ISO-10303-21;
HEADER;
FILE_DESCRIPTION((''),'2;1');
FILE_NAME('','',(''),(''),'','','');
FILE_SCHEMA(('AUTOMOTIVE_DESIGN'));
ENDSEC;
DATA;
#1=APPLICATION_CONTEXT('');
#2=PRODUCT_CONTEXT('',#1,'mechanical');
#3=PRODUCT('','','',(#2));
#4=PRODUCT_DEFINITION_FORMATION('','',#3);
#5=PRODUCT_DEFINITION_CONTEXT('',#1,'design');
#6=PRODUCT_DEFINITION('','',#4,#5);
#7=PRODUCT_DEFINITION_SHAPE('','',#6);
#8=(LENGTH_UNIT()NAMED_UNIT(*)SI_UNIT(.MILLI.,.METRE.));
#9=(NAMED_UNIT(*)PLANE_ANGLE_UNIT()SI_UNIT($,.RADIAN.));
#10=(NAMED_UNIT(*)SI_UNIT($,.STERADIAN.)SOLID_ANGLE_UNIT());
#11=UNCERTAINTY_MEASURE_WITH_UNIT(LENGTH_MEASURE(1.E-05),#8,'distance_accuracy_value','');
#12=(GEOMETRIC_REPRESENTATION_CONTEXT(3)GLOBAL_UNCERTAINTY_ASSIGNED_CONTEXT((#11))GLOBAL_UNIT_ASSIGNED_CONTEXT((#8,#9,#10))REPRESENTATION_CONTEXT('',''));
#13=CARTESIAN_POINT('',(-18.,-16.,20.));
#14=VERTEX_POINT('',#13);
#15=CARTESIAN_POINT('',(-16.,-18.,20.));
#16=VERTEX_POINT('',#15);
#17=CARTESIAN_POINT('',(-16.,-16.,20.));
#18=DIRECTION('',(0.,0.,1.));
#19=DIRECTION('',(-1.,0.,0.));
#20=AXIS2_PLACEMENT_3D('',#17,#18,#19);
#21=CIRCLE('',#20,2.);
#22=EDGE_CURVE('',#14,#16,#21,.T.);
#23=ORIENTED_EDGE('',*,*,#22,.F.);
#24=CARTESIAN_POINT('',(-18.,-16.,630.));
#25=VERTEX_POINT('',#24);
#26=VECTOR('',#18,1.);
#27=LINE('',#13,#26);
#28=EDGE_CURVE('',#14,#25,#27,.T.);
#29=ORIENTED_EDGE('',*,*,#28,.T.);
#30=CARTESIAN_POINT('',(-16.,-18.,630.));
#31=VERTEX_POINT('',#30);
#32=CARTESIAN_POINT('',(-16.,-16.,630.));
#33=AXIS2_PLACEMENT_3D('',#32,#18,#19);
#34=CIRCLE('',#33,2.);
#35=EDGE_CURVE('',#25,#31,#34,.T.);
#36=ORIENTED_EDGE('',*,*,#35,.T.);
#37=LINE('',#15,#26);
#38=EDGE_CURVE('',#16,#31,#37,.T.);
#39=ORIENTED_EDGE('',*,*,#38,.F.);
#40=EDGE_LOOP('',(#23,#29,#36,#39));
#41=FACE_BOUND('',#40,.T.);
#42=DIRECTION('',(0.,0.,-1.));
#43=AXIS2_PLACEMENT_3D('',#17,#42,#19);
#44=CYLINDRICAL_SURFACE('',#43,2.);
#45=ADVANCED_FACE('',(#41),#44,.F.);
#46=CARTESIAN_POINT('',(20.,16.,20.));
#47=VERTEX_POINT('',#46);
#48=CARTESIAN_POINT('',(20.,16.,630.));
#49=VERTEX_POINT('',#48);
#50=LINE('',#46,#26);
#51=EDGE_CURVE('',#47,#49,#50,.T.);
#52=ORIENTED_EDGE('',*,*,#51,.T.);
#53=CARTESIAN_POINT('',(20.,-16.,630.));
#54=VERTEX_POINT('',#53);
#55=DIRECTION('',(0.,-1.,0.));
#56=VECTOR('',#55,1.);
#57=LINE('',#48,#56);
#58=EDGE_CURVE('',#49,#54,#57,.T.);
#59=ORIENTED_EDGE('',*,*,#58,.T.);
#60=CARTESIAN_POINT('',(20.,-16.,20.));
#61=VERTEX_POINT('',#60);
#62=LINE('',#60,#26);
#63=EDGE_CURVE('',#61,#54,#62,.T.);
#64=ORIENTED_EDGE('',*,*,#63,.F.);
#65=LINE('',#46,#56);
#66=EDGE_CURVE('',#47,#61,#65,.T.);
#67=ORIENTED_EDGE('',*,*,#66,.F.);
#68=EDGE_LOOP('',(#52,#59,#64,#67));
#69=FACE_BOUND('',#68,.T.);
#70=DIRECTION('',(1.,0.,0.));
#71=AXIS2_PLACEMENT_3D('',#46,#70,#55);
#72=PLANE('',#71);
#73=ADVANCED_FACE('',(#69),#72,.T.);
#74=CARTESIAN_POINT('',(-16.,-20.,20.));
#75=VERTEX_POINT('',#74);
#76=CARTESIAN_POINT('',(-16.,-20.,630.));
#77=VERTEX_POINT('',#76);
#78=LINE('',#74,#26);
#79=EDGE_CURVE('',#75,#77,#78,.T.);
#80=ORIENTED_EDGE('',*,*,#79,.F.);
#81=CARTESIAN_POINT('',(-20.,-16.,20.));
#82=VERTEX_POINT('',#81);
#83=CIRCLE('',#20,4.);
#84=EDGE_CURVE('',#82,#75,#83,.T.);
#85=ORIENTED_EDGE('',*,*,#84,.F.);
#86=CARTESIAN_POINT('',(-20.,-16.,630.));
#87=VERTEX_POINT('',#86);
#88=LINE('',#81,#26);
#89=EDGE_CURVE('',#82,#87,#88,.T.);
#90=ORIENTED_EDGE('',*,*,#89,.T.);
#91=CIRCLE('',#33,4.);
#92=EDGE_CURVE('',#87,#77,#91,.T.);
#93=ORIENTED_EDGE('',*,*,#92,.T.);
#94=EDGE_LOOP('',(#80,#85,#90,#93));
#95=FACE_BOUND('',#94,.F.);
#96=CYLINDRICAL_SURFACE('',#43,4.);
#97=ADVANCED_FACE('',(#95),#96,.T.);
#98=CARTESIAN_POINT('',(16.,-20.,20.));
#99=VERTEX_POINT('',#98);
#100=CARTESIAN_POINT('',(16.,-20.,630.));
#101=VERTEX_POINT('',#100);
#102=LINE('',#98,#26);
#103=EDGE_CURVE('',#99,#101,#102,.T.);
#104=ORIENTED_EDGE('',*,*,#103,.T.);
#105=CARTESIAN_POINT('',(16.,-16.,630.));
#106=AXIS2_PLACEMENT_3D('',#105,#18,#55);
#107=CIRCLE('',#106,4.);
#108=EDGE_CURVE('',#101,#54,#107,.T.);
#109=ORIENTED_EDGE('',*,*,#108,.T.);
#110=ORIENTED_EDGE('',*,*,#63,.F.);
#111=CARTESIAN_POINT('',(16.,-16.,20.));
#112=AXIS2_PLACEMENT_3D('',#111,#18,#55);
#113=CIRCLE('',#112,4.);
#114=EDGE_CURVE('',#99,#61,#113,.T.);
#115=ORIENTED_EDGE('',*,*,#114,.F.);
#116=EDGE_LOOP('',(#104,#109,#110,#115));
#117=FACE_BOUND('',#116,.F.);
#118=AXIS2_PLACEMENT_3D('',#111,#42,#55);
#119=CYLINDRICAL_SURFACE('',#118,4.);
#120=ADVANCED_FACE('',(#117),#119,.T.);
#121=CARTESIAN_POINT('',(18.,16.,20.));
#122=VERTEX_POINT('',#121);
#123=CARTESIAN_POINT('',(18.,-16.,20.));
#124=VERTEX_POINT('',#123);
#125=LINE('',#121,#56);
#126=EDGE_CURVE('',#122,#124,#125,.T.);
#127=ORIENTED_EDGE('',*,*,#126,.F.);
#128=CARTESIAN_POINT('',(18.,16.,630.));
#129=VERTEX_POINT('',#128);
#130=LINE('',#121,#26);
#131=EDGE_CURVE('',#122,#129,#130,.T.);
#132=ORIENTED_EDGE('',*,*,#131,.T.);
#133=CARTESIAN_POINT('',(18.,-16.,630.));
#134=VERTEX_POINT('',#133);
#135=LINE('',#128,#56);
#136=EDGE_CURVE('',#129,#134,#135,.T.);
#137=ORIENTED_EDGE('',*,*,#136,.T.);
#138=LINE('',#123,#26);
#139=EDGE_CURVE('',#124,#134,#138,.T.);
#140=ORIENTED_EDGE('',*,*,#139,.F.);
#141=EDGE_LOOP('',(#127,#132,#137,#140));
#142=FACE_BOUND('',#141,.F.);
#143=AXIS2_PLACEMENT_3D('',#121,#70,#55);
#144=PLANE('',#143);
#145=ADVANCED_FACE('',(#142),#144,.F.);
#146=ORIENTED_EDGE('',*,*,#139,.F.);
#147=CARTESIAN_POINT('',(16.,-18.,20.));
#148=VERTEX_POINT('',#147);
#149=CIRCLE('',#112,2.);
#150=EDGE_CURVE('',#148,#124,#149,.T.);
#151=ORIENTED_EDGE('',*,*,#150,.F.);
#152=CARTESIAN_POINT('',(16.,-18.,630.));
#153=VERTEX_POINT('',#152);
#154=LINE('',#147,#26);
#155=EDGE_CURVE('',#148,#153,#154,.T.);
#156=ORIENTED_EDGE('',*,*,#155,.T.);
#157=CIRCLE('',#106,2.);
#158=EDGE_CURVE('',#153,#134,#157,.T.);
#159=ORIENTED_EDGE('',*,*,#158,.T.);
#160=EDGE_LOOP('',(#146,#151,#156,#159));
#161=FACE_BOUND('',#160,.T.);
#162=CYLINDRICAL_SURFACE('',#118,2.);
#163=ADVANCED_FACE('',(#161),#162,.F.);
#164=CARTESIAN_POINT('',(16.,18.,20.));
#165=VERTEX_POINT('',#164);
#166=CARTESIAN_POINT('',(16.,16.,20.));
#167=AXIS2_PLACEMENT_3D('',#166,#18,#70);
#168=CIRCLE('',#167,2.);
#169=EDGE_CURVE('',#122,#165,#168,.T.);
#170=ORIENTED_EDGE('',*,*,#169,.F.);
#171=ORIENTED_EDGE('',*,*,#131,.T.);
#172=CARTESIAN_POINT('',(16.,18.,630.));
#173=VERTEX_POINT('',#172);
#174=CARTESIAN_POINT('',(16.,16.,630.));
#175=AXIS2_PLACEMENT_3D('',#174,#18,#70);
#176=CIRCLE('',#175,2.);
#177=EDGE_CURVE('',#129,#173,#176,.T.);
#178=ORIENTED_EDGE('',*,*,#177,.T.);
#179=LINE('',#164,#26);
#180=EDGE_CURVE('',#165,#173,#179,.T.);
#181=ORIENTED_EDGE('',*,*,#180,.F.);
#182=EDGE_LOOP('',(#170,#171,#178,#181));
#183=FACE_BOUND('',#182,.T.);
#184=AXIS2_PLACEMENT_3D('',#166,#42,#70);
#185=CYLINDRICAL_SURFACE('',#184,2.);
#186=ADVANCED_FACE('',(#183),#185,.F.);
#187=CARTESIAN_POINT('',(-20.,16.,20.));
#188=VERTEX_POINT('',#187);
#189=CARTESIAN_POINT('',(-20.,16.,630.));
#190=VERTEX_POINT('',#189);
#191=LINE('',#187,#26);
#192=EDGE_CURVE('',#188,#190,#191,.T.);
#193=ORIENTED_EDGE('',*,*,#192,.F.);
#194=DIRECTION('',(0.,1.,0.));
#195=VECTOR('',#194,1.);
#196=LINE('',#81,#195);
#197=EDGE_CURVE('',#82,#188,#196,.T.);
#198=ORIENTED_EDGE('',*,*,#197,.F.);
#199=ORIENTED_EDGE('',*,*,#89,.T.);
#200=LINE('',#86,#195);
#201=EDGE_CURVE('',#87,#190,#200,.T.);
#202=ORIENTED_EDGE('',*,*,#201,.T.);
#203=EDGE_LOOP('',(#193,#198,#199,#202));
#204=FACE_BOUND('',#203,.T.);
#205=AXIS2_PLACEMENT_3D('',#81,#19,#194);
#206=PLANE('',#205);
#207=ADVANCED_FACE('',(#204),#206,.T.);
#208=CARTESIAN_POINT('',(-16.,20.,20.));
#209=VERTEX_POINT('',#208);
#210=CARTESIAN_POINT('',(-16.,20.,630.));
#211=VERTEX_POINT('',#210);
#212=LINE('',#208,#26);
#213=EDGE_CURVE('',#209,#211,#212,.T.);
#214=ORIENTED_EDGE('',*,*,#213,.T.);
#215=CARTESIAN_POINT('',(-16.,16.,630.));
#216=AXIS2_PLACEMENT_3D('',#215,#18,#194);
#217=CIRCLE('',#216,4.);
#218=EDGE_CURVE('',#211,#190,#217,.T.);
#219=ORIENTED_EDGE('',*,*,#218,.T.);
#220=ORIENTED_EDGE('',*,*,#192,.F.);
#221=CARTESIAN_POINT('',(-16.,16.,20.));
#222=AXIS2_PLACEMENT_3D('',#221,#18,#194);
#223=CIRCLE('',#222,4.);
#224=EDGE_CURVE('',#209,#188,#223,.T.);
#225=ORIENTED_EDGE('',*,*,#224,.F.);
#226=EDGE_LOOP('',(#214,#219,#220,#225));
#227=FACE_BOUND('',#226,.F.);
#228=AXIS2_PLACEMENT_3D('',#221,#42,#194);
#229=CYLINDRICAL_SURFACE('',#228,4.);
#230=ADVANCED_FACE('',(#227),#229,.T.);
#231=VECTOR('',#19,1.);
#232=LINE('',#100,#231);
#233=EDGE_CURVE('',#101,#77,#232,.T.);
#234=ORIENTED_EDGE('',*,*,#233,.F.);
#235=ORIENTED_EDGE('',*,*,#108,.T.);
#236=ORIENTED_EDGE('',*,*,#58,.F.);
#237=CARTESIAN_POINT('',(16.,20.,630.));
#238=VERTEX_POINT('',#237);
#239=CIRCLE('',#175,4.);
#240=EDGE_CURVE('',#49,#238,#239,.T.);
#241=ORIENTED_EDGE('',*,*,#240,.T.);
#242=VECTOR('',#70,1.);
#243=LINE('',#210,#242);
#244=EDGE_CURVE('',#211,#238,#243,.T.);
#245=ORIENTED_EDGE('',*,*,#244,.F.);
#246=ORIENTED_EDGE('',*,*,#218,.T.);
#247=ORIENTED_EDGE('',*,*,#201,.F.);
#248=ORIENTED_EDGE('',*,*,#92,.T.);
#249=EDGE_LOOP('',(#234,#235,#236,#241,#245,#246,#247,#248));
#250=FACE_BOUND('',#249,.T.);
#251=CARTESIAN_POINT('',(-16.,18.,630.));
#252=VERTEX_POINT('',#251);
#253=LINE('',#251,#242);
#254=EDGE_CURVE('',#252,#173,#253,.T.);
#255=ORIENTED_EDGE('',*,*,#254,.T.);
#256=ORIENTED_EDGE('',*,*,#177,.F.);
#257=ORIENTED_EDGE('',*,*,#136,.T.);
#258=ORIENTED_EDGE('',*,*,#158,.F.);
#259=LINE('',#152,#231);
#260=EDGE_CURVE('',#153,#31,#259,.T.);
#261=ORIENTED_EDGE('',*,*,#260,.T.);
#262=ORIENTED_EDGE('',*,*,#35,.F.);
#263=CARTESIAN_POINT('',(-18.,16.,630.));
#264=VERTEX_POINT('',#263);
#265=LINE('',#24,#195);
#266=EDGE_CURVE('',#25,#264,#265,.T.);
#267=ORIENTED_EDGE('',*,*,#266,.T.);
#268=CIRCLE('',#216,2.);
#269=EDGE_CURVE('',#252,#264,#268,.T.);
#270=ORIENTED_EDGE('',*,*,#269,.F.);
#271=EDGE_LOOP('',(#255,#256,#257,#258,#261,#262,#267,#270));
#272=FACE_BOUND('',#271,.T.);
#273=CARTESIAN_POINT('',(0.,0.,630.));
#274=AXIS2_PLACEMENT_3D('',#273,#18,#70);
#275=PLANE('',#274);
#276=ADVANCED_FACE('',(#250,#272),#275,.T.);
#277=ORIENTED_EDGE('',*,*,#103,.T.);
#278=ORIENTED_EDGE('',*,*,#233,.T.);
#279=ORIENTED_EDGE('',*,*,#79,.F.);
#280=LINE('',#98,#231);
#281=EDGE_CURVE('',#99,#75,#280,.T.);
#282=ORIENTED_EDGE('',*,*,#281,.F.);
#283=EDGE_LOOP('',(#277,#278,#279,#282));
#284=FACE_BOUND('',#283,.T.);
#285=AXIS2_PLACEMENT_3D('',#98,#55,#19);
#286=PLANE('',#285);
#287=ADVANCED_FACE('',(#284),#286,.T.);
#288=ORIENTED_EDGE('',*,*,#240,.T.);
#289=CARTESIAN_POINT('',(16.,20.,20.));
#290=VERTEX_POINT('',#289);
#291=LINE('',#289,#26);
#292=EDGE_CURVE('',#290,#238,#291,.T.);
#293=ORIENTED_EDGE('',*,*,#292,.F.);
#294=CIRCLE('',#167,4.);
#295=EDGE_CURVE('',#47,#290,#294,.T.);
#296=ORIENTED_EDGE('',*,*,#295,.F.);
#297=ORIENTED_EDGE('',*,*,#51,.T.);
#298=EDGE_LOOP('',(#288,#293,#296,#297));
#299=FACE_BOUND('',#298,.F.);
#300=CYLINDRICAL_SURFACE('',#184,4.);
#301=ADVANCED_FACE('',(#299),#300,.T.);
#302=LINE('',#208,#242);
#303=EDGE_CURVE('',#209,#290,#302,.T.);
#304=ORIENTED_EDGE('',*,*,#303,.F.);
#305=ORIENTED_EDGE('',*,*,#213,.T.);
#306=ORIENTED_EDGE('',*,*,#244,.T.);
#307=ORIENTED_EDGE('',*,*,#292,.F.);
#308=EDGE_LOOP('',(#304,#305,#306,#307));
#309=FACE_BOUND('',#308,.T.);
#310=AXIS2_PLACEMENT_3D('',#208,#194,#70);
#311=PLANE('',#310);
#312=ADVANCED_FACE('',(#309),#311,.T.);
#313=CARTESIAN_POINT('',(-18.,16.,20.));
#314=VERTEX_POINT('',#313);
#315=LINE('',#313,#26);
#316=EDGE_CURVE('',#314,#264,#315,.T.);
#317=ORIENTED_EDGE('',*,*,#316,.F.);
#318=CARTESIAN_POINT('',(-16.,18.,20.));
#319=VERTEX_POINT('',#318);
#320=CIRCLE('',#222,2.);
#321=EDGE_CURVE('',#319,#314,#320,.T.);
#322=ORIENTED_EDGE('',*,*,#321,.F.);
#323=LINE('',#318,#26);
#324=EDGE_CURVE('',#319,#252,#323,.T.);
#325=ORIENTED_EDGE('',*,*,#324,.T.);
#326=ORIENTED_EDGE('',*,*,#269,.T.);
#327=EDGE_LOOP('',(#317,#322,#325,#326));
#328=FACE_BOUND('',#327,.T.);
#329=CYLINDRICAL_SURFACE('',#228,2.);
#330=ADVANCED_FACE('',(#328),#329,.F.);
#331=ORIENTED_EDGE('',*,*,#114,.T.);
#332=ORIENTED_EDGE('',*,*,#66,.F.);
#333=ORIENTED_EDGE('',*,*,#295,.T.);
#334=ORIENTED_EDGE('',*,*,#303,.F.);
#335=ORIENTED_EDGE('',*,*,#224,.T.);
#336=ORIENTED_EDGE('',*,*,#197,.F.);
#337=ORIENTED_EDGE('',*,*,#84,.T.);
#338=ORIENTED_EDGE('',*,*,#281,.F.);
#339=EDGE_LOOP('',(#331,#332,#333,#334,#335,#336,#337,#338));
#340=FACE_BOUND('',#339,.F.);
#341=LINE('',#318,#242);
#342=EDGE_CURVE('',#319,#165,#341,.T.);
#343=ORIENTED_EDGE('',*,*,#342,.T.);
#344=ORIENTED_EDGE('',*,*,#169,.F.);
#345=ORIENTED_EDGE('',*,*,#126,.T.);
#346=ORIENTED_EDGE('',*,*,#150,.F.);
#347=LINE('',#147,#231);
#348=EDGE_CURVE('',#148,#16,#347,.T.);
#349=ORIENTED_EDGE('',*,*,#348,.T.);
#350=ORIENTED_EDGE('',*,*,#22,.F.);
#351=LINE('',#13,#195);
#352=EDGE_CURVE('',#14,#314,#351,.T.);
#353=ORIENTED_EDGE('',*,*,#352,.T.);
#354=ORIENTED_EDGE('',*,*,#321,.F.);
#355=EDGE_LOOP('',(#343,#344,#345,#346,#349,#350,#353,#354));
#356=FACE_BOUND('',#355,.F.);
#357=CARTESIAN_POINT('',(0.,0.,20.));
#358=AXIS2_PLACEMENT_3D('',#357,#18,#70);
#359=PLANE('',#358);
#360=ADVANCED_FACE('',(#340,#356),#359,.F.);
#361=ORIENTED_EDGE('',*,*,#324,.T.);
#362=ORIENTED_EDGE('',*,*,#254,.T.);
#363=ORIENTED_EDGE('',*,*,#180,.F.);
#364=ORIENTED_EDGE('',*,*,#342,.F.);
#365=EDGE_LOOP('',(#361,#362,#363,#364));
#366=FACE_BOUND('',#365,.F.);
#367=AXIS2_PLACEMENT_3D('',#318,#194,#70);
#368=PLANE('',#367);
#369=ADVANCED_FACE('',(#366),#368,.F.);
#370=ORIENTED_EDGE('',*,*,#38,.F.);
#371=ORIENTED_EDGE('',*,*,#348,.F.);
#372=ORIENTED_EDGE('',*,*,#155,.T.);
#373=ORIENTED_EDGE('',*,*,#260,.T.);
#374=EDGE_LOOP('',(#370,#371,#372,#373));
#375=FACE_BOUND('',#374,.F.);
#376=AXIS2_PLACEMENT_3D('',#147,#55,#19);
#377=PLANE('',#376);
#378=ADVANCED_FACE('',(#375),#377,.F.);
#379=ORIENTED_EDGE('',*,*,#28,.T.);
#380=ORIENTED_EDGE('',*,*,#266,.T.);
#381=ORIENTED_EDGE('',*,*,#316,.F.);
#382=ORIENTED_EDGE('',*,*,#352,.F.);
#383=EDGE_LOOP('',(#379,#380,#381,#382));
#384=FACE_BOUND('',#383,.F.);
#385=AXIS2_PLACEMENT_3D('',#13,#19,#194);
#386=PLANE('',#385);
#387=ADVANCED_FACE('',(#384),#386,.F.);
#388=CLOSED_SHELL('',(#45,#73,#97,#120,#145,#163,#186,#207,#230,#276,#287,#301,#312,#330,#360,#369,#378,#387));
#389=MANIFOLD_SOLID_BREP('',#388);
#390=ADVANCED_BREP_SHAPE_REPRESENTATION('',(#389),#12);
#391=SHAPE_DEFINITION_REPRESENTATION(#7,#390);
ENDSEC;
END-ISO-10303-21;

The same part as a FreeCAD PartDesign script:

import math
import FreeCAD as App
import Part
import Sketcher
from FreeCAD import Vector

doc = App.newDocument("Part")
body = doc.addObject("PartDesign::Body", "Body")

# Sketch on XY plane
sketch1 = body.newObject("Sketcher::SketchObject", "Sketch")
sketch1.AttachmentSupport = (doc.getObject("XY_Plane"), [""])
sketch1.MapMode = "FlatFace"
sketch1.AttachmentOffset = App.Placement(Vector(0, 0, 20), App.Rotation())
sketch1.addGeometry([
    Part.LineSegment(Vector(-20, 16, 0), Vector(-20, -16, 0)),  # 0
    Part.ArcOfCircle(Part.Circle(Vector(-16, -16, 0), Vector(0, 0, 1), 4), math.radians(180), math.radians(270)),  # 1
    Part.LineSegment(Vector(-16, -20, 0), Vector(16, -20, 0)),  # 2
    Part.ArcOfCircle(Part.Circle(Vector(16, -16, 0), Vector(0, 0, 1), 4), math.radians(-90), math.radians(0)),  # 3
    Part.LineSegment(Vector(20, -16, 0), Vector(20, 16, 0)),  # 4
    Part.ArcOfCircle(Part.Circle(Vector(16, 16, 0), Vector(0, 0, 1), 4), math.radians(0), math.radians(90)),  # 5
    Part.LineSegment(Vector(16, 20, 0), Vector(-16, 20, 0)),  # 6
    Part.ArcOfCircle(Part.Circle(Vector(-16, 16, 0), Vector(0, 0, 1), 4), math.radians(90), math.radians(180)),  # 7
    Part.ArcOfCircle(Part.Circle(Vector(-16, 16, 0), Vector(0, 0, 1), 2), math.radians(90), math.radians(180)),  # 8
    Part.LineSegment(Vector(-16, 18, 0), Vector(16, 18, 0)),  # 9
    Part.ArcOfCircle(Part.Circle(Vector(16, 16, 0), Vector(0, 0, 1), 2), math.radians(0), math.radians(90)),  # 10
    Part.LineSegment(Vector(18, 16, 0), Vector(18, -16, 0)),  # 11
    Part.ArcOfCircle(Part.Circle(Vector(16, -16, 0), Vector(0, 0, 1), 2), math.radians(-90), math.radians(0)),  # 12
    Part.LineSegment(Vector(16, -18, 0), Vector(-16, -18, 0)),  # 13
    Part.ArcOfCircle(Part.Circle(Vector(-16, -16, 0), Vector(0, 0, 1), 2), math.radians(180), math.radians(270)),  # 14
    Part.LineSegment(Vector(-18, -16, 0), Vector(-18, 16, 0)),  # 15
], False)
sketch1.addConstraint([
    Sketcher.Constraint("Tangent", 0, 2, 1, 1),
    Sketcher.Constraint("Tangent", 1, 2, 2, 1),
    Sketcher.Constraint("Tangent", 2, 2, 3, 1),
    Sketcher.Constraint("Tangent", 3, 2, 4, 1),
    Sketcher.Constraint("Tangent", 4, 2, 5, 1),
    Sketcher.Constraint("Tangent", 5, 2, 6, 1),
    Sketcher.Constraint("Tangent", 6, 2, 7, 1),
    Sketcher.Constraint("Tangent", 7, 2, 0, 1),
    Sketcher.Constraint("Tangent", 8, 1, 9, 1),
    Sketcher.Constraint("Tangent", 9, 2, 10, 2),
    Sketcher.Constraint("Tangent", 10, 1, 11, 1),
    Sketcher.Constraint("Tangent", 11, 2, 12, 2),
    Sketcher.Constraint("Tangent", 12, 1, 13, 1),
    Sketcher.Constraint("Tangent", 13, 2, 14, 2),
    Sketcher.Constraint("Tangent", 14, 1, 15, 1),
    Sketcher.Constraint("Tangent", 15, 2, 8, 2),
    Sketcher.Constraint("Vertical", 0),
    Sketcher.Constraint("Horizontal", 2),
    Sketcher.Constraint("Vertical", 4),
    Sketcher.Constraint("Horizontal", 6),
    Sketcher.Constraint("Horizontal", 9),
    Sketcher.Constraint("Vertical", 11),
    Sketcher.Constraint("Horizontal", 13),
    Sketcher.Constraint("Vertical", 15),
    Sketcher.Constraint("Coincident", 8, 3, 7, 3),
    Sketcher.Constraint("Coincident", 10, 3, 5, 3),
    Sketcher.Constraint("Coincident", 12, 3, 3, 3),
    Sketcher.Constraint("Equal", 1, 3),
    Sketcher.Constraint("Equal", 3, 5),
    Sketcher.Constraint("Equal", 5, 7),
    Sketcher.Constraint("Equal", 12, 14),
    Sketcher.Constraint("Symmetric", 1, 3, 5, 3, -1, 1),
    Sketcher.Constraint("Equal", 13, 0),
    Sketcher.Constraint("Radius", 1, 4.0),
    Sketcher.Constraint("Radius", 8, 2.0),
    Sketcher.Constraint("DistanceX", 0, 2, -1, 1, 20.0),
])
pad1 = body.newObject("PartDesign::Pad", "Pad")
pad1.Profile = sketch1
pad1.Length = 610

doc.recompute()
